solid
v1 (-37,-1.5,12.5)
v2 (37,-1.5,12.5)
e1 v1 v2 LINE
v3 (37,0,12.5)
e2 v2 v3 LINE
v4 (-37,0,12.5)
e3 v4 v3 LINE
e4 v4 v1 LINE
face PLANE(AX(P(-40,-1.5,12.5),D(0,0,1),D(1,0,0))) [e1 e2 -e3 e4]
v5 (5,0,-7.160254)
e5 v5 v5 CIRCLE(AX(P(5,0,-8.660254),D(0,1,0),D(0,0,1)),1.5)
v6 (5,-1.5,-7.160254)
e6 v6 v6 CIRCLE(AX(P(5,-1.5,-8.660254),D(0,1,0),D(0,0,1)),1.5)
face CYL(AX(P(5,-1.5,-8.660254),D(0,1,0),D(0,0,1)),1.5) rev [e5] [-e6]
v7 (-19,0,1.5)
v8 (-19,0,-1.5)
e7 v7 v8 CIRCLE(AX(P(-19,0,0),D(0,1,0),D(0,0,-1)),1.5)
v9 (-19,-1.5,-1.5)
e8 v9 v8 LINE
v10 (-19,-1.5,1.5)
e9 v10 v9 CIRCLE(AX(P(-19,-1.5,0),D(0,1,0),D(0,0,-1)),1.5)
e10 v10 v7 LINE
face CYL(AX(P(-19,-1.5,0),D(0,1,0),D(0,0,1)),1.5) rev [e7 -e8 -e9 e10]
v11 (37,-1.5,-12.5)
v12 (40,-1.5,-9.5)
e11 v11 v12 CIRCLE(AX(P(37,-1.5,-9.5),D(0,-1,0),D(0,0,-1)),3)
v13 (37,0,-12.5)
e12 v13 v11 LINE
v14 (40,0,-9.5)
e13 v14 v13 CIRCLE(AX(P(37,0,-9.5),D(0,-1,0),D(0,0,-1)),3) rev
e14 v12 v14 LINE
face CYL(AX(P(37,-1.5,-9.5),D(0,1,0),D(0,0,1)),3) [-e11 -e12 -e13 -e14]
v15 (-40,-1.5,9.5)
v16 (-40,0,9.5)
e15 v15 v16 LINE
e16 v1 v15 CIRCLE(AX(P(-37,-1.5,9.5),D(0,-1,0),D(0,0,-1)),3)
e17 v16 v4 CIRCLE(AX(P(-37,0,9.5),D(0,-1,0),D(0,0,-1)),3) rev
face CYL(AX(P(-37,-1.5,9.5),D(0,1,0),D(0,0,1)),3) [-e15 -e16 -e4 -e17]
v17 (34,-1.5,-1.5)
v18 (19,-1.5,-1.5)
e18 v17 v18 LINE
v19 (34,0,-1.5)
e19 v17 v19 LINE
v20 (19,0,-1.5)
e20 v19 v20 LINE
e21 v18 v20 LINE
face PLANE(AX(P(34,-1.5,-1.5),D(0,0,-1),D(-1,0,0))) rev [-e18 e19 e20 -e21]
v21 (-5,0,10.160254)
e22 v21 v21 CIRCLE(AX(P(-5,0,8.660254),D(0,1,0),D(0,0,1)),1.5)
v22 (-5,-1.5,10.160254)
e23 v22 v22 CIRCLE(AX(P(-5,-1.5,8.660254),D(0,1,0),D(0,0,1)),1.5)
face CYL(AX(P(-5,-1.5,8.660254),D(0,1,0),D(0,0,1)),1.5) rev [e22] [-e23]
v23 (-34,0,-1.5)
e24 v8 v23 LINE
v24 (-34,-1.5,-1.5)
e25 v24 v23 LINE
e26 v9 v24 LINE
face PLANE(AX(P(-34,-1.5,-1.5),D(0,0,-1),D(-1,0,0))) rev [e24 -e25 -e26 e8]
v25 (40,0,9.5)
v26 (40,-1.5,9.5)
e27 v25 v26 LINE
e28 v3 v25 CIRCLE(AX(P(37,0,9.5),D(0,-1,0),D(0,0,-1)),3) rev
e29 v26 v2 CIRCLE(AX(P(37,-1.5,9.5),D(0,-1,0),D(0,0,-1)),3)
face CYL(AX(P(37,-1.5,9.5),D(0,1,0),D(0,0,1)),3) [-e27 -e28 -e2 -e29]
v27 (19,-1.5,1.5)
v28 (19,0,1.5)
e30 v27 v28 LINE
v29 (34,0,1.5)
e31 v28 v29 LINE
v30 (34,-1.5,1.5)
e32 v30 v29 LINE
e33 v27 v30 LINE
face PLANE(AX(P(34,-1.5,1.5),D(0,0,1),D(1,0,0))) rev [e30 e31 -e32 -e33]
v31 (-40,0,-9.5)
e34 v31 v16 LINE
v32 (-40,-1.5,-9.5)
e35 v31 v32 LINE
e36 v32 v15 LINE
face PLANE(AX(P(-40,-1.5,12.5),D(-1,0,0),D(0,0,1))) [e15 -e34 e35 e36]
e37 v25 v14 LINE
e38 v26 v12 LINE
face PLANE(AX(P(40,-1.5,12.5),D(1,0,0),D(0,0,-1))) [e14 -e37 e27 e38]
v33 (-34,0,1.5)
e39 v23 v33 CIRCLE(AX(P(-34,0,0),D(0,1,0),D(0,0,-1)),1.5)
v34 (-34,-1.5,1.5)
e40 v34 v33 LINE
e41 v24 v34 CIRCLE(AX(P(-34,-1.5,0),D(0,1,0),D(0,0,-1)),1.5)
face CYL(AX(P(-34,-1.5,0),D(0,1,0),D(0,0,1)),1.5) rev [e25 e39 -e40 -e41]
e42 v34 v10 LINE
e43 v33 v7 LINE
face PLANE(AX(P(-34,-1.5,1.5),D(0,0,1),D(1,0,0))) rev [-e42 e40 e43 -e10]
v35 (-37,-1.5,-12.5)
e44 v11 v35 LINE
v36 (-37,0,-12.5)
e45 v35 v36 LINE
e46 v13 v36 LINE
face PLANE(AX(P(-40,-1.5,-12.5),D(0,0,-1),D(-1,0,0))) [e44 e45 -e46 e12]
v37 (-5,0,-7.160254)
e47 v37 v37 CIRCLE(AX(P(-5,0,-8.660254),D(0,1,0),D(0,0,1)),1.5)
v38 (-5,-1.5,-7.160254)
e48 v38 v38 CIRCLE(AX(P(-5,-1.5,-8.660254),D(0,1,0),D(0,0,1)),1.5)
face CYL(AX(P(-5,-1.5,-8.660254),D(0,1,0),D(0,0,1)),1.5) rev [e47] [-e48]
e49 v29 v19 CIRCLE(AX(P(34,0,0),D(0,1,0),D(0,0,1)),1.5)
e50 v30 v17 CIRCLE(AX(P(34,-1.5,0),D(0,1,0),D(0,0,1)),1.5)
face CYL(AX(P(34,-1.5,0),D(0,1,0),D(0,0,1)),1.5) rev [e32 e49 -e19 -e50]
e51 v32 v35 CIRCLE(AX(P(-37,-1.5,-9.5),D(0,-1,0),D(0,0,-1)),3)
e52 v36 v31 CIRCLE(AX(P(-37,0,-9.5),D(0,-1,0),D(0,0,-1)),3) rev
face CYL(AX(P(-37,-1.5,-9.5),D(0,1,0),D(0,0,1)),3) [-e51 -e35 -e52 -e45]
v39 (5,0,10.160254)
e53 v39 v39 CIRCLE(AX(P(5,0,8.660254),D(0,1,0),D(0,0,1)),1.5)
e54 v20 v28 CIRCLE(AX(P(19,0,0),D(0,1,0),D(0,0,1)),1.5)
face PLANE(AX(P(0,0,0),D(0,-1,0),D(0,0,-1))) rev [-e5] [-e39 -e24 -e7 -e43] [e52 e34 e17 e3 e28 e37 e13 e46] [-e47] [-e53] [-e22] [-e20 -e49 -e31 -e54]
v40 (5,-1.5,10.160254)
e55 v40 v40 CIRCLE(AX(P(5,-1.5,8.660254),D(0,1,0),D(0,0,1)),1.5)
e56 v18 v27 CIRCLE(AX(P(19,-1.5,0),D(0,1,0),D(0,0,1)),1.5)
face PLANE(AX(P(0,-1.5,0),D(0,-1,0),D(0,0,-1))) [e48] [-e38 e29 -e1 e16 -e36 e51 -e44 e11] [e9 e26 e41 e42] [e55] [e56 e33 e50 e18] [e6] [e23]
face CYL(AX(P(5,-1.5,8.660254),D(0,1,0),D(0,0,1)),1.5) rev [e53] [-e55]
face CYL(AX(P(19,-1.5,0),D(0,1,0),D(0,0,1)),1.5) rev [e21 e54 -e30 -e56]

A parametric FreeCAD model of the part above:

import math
import FreeCAD as App
import Part
import Sketcher
from FreeCAD import Vector


def edges_at(feature, points):
    """Names of the edges that pass closest to the given points."""
    edges = feature.Shape.Edges
    near = lambda p: min(range(len(edges)), key=lambda i: edges[i].distToShape(Part.Vertex(*p))[0])
    return sorted({f"Edge{near(p) + 1}" for p in points})


def add_polygon(sketch, points):
    """Adds a closed chain of lines whose ends are joined by coincident constraints."""
    first, n = sketch.GeometryCount, len(points)
    for a, b in zip(points, points[1:] + points[:1]):
        sketch.addGeometry(Part.LineSegment(App.Vector(*a, 0), App.Vector(*b, 0)), False)
    for i in range(n):
        sketch.addConstraint(Sketcher.Constraint("Coincident", first + i, 2, first + (i + 1) % n, 1))

doc = App.newDocument("Part")
body = doc.addObject("PartDesign::Body", "Body")

sketch1 = body.newObject("Sketcher::SketchObject", "Sketch")
sketch1.AttachmentSupport = (doc.getObject("XZ_Plane"), [""])
sketch1.MapMode = "FlatFace"
add_polygon(sketch1, [(-40, -12.5), (-40, 12.5), (40, 12.5), (40, -12.5)])
sketch1.addGeometry(Part.Circle(Vector(-5, 8.660254, 0), Vector(0, 0, 1), 1.5), False)
sketch1.addGeometry(Part.Circle(Vector(5, 8.660254, 0), Vector(0, 0, 1), 1.5), False)
sketch1.addGeometry(Part.LineSegment(Vector(-19, 1.5, 0), Vector(-34, 1.5, 0)), False)
sketch1.addGeometry(Part.ArcOfCircle(Part.Circle(Vector(-34, 0, 0), Vector(0, 0, 1), 1.5), math.radians(90), math.radians(270)), False)
sketch1.addGeometry(Part.LineSegment(Vector(-34, -1.5, 0), Vector(-19, -1.5, 0)), False)
sketch1.addGeometry(Part.ArcOfCircle(Part.Circle(Vector(-19, 0, 0), Vector(0, 0, 1), 1.5), math.radians(-90), math.radians(90)), False)
sketch1.addGeometry(Part.Circle(Vector(-5, -8.660254, 0), Vector(0, 0, 1), 1.5), False)
sketch1.addGeometry(Part.ArcOfCircle(Part.Circle(Vector(34, 0, 0), Vector(0, 0, 1), 1.5), math.radians(-90), math.radians(90)), False)
sketch1.addGeometry(Part.LineSegment(Vector(34, 1.5, 0), Vector(19, 1.5, 0)), False)
sketch1.addGeometry(Part.ArcOfCircle(Part.Circle(Vector(19, 0, 0), Vector(0, 0, 1), 1.5), math.radians(90), math.radians(270)), False)
sketch1.addGeometry(Part.LineSegment(Vector(19, -1.5, 0), Vector(34, -1.5, 0)), False)
sketch1.addGeometry(Part.Circle(Vector(5, -8.660254, 0), Vector(0, 0, 1), 1.5), False)
sketch1.addConstraint([
    Sketcher.Constraint("Tangent", 6, 2, 7, 1),
    Sketcher.Constraint("Tangent", 7, 2, 8, 1),
    Sketcher.Constraint("Tangent", 8, 2, 9, 1),
    Sketcher.Constraint("Tangent", 9, 2, 6, 1),
    Sketcher.Constraint("Tangent", 11, 2, 12, 1),
    Sketcher.Constraint("Tangent", 12, 2, 13, 1),
    Sketcher.Constraint("Tangent", 13, 2, 14, 1),
    Sketcher.Constraint("Tangent", 14, 2, 11, 1),
    Sketcher.Constraint("Vertical", 0),
    Sketcher.Constraint("Horizontal", 1),
    Sketcher.Constraint("Vertical", 2),
    Sketcher.Constraint("Horizontal", 3),
    Sketcher.Constraint("Horizontal", 6),
    Sketcher.Constraint("Horizontal", 8),
    Sketcher.Constraint("Horizontal", 12),
    Sketcher.Constraint("Horizontal", 14),
    Sketcher.Constraint("Equal", 4, 5),
    Sketcher.Constraint("Equal", 5, 7),
    Sketcher.Constraint("Equal", 9, 10),
    Sketcher.Constraint("Equal", 10, 11),
    Sketcher.Constraint("Equal", 13, 15),
    Sketcher.Constraint("Symmetric", 5, 3, 10, 3, -1, 1),
    Sketcher.Constraint("Symmetric", 7, 3, 11, 3, -1, 1),
    Sketcher.Constraint("Symmetric", 4, 3, 15, 3, -1, 1),
    Sketcher.Constraint("Symmetric", 0, 2, 2, 2, -1, 1),
    Sketcher.Constraint("Symmetric", 4, 3, 5, 3, -2),
    Sketcher.Constraint("Symmetric", 9, 3, 13, 3, -2),
    Sketcher.Constraint("Diameter", 4, 3.0),
    Sketcher.Constraint("DistanceX", 1, 1, 1, 2, 80.0),
    Sketcher.Constraint("DistanceX", 6, 2, 6, 1, 15.0),
    Sketcher.Constraint("DistanceY", 0, 1, 0, 2, 25.0),
    Sketcher.Constraint("DistanceX", 4, 3, -1, 1, 5.0),
    Sketcher.Constraint("DistanceX", 7, 3, -1, 1, 34.0),
    Sketcher.Constraint("DistanceY", 10, 3, 4, 3, 17.320508),
])
pad1 = body.newObject("PartDesign::Pad", "Pad")
pad1.Profile = sketch1
pad1.Length = 1.5
doc.recompute()

fillet = body.newObject("PartDesign::Fillet", "Fillet")
fillet.Base = (pad1, edges_at(pad1, [
    (40, -0.75, 12.5),
    (-40, -0.75, 12.5),
    (-40, -0.75, -12.5),
    (40, -0.75, -12.5),
]))
fillet.Radius = 3

doc.recompute()
